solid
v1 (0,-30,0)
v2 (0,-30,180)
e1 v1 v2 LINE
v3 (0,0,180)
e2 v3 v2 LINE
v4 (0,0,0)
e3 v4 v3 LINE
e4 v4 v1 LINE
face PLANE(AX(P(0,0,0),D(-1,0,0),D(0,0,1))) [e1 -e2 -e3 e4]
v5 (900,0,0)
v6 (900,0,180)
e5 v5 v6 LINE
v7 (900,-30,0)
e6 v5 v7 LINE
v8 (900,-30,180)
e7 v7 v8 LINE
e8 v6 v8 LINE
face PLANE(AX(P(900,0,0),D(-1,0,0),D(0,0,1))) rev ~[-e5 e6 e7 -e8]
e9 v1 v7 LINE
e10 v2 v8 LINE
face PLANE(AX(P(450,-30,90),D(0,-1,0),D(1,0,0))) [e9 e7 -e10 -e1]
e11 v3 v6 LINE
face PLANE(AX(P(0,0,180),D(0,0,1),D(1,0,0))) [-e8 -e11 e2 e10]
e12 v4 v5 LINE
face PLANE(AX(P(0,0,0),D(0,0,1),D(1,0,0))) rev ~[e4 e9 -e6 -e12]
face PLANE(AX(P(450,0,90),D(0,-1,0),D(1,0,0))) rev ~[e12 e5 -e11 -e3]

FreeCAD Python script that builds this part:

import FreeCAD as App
import Part
import Sketcher

V = App.Vector


def add_polygon(sketch, points):
    """Adds a closed chain of lines whose ends are joined by coincident constraints."""
    first, n = sketch.GeometryCount, len(points)
    for a, b in zip(points, points[1:] + points[:1]):
        sketch.addGeometry(Part.LineSegment(App.Vector(*a, 0), App.Vector(*b, 0)), False)
    for i in range(n):
        sketch.addConstraint(Sketcher.Constraint("Coincident", first + i, 2, first + (i + 1) % n, 1))

doc = App.newDocument("Part")
body = doc.addObject("PartDesign::Body", "Body")

sketch1 = body.newObject("Sketcher::SketchObject", "Sketch")
sketch1.AttachmentSupport = (doc.getObject("XZ_Plane"), [""])
sketch1.MapMode = "FlatFace"
add_polygon(sketch1, [(0, 180), (0, 0), (900, 0), (900, 180)])
sketch1.addConstraint([
    Sketcher.Constraint("Vertical", 0),
    Sketcher.Constraint("Horizontal", 1),
    Sketcher.Constraint("Vertical", 2),
    Sketcher.Constraint("Horizontal", 3),
    Sketcher.Constraint("Coincident", 0, 2, -1, 1),
    Sketcher.Constraint("DistanceX", 1, 1, 1, 2, 900.0),
    Sketcher.Constraint("DistanceY", 0, 2, 0, 1, 180.0),
])
pad1 = body.newObject("PartDesign::Pad", "Pad")
pad1.Profile = sketch1
pad1.Length = 30

doc.recompute()
